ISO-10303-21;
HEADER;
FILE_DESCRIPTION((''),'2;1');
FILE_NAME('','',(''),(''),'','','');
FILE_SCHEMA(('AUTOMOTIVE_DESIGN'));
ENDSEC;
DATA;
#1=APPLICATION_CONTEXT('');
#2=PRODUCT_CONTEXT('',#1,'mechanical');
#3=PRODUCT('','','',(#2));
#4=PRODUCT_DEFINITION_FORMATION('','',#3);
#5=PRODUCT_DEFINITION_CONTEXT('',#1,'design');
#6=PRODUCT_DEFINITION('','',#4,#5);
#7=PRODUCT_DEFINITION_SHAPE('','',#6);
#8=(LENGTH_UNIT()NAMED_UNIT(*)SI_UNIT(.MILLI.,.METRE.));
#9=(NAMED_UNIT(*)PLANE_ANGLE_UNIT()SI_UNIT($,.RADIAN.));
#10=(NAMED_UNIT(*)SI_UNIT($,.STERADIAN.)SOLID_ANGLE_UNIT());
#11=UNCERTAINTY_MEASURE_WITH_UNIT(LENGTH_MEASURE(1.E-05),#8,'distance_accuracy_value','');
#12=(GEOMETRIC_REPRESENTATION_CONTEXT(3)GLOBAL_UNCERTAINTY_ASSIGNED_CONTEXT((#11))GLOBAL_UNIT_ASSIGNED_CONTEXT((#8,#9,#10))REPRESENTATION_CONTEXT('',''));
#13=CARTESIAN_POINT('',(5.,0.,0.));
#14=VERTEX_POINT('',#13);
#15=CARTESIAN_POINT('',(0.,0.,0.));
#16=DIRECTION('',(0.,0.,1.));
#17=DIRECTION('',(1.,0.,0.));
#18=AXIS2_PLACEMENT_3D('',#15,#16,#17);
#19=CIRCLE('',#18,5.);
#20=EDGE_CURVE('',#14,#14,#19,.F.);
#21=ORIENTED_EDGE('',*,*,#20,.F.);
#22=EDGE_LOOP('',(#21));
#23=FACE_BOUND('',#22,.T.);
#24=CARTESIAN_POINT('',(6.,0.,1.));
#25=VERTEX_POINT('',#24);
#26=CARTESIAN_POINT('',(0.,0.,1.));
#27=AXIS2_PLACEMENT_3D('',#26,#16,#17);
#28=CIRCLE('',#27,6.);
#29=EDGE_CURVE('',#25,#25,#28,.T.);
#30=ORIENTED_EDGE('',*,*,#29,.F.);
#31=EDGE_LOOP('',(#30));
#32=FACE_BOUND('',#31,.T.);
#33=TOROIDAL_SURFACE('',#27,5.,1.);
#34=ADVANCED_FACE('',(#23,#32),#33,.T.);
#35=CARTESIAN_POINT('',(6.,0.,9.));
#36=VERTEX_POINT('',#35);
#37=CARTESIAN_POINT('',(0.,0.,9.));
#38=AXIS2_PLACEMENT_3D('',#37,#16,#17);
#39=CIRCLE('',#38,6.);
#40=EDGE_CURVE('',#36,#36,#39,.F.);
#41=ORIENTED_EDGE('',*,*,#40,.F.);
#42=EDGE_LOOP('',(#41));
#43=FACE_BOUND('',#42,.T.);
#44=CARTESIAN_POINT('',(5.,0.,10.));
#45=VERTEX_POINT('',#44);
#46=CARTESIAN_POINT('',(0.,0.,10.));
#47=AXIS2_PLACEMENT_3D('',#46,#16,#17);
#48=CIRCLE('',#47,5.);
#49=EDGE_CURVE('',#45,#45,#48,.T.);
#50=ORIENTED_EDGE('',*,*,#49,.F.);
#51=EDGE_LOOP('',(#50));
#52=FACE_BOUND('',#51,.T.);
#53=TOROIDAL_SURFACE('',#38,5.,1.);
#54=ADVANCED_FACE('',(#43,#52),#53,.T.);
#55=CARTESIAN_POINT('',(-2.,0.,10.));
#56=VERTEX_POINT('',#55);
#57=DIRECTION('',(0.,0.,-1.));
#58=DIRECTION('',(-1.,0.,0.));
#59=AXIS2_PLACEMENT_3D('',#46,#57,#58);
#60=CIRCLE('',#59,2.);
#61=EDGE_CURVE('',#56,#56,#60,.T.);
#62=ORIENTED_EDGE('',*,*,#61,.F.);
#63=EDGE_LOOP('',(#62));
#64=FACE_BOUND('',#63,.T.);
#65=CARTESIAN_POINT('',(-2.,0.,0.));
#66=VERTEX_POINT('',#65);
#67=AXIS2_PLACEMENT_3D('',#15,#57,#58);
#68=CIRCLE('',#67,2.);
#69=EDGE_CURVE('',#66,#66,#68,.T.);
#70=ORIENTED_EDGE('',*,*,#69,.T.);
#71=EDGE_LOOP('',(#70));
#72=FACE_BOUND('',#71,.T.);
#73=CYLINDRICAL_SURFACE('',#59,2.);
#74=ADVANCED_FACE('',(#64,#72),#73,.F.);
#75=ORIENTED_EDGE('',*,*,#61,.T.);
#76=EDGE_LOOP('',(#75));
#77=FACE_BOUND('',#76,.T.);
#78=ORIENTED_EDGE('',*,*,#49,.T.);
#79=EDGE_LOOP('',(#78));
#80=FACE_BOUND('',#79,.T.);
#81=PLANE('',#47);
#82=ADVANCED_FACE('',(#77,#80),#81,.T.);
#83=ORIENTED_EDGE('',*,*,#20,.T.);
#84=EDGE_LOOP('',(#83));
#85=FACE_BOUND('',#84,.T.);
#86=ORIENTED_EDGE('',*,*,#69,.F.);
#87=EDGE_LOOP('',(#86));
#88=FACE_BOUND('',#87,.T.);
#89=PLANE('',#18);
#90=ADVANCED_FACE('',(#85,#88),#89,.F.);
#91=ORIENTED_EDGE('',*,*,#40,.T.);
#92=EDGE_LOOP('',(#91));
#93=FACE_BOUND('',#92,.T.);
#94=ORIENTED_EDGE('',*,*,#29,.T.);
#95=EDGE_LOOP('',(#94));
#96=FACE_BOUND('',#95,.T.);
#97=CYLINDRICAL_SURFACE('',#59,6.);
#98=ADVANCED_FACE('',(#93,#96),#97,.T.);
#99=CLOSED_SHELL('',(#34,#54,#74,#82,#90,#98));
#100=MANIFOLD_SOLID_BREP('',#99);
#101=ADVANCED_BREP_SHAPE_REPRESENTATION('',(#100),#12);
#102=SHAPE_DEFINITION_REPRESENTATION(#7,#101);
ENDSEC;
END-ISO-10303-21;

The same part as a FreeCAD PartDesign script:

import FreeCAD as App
import Part
import Sketcher
from FreeCAD import Vector


def edges_at(feature, points):
    """Names of the edges that pass closest to the given points."""
    edges = feature.Shape.Edges
    near = lambda p: min(range(len(edges)), key=lambda i: edges[i].distToShape(Part.Vertex(*p))[0])
    return sorted({f"Edge{near(p) + 1}" for p in points})

doc = App.newDocument("Part")
body = doc.addObject("PartDesign::Body", "Body")

sketch1 = doc.addObject("Sketcher::SketchObject", "Sketch")
body.addObject(sketch1)
sketch1.AttachmentSupport = (doc.XY_Plane, [""])
sketch1.MapMode = "FlatFace"
sketch1.addGeometry(Part.Circle(Vector(0, 0, 0), Vector(0, 0, 1), 6), False)
sketch1.addConstraint([
    Sketcher.Constraint("Coincident", 0, 3, -1, 1),
    Sketcher.Constraint("Diameter", 0, 12.0),
])
pad1 = doc.addObject("PartDesign::Pad", "Pad")
body.addObject(pad1)
pad1.Profile = sketch1
pad1.Length = 10

sketch2 = doc.addObject("Sketcher::SketchObject", "Sketch001")
body.addObject(sketch2)
sketch2.AttachmentSupport = (doc.XY_Plane, [""])
sketch2.MapMode = "FlatFace"
sketch2.addGeometry(Part.Circle(Vector(0, 0, 0), Vector(0, 0, 1), 2), False)
sketch2.addConstraint([
    Sketcher.Constraint("Coincident", 0, 3, -1, 1),
    Sketcher.Constraint("Diameter", 0, 4.0),
])
pocket1 = doc.addObject("PartDesign::Pocket", "Pocket")
body.addObject(pocket1)
pocket1.Profile = sketch2
pocket1.Type = "ThroughAll"
pocket1.Reversed = True
doc.recompute()

fillet = doc.addObject("PartDesign::Fillet", "Fillet")
body.addObject(fillet)
fillet.Base = (pocket1, edges_at(pocket1, [(-6, 0, 0), (-6, 0, 10)]))
fillet.Radius = 1

doc.recompute()
